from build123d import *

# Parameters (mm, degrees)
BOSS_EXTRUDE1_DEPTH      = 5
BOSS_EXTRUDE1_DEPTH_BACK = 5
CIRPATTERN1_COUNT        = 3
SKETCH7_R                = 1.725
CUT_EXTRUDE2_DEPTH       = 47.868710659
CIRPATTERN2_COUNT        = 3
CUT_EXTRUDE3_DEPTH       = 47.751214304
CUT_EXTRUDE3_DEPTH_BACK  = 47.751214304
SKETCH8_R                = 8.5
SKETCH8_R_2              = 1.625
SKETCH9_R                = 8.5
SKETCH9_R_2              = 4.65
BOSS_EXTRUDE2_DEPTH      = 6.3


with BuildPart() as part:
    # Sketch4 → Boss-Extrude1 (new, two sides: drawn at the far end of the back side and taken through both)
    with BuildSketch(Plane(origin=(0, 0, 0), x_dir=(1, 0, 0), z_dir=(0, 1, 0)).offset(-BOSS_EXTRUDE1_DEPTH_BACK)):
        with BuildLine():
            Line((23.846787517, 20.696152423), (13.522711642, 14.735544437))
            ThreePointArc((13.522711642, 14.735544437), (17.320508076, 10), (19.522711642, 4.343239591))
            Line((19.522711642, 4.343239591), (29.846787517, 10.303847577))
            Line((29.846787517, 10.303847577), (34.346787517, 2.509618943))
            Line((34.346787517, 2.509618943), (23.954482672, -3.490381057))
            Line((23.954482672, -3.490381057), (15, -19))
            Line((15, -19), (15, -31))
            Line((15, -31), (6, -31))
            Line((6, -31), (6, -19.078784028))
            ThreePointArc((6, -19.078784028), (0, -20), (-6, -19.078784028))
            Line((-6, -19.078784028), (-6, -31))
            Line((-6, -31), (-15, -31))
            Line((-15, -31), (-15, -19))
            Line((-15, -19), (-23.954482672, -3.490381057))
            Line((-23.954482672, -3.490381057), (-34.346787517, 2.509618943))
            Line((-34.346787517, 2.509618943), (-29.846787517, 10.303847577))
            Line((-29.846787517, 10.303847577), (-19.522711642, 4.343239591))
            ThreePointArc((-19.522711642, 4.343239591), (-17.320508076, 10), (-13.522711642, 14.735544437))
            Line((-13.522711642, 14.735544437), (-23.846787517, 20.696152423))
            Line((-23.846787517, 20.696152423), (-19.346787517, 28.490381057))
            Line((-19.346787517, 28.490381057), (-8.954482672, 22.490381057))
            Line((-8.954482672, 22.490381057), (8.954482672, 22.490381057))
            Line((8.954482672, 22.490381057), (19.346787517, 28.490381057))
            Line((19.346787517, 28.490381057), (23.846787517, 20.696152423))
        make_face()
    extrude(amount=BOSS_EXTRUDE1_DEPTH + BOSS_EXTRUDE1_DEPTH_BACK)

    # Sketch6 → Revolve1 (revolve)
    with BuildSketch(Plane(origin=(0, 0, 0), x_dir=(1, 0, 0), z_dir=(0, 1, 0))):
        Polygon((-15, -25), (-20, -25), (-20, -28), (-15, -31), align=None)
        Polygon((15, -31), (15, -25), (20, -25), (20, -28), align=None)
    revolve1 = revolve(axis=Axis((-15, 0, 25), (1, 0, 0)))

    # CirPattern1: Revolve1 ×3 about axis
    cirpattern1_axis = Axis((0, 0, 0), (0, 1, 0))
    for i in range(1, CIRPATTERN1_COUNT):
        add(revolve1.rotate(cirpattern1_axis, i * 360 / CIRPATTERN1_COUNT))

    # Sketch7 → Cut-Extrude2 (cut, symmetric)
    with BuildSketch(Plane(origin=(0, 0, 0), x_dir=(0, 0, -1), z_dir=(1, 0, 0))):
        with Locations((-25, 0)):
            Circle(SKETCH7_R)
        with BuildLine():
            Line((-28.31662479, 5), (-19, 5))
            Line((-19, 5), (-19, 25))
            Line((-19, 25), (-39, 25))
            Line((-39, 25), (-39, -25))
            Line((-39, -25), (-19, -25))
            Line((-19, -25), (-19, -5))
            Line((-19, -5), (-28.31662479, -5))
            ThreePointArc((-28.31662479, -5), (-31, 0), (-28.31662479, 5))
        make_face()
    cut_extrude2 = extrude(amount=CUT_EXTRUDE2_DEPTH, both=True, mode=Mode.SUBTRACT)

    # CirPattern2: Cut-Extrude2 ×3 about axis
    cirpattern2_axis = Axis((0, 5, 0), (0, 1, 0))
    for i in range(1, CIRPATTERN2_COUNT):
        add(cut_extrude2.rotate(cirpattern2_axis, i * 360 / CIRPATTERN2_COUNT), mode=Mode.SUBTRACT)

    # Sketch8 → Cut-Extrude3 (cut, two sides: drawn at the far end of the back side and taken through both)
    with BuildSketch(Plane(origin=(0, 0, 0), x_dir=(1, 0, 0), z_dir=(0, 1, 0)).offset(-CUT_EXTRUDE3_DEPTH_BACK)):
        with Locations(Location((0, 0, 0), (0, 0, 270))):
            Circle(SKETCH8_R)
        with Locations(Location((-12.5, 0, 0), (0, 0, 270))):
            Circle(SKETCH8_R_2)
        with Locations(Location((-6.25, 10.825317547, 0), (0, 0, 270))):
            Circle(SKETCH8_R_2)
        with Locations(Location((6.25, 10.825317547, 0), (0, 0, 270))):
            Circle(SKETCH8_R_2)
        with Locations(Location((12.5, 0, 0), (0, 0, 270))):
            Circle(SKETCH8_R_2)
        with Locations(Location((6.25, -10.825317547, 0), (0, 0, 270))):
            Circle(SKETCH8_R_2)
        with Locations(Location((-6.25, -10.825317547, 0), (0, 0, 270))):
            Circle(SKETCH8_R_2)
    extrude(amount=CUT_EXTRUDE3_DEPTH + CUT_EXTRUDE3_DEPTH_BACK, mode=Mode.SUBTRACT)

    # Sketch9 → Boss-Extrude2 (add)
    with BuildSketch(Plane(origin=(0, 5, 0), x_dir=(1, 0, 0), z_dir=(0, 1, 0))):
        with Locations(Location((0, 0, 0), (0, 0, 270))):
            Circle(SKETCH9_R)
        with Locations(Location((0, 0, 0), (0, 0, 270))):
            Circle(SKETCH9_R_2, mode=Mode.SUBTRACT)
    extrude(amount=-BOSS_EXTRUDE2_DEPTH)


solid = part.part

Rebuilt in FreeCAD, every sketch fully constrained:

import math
import FreeCAD as App
import Part
import Sketcher

V = App.Vector
Q = App.Units.Quantity


def add_polygon(sketch, points):
    """Adds a closed chain of lines whose ends are joined by coincident constraints."""
    first, n = sketch.GeometryCount, len(points)
    for a, b in zip(points, points[1:] + points[:1]):
        sketch.addGeometry(Part.LineSegment(App.Vector(*a, 0), App.Vector(*b, 0)), False)
    for i in range(n):
        sketch.addConstraint(Sketcher.Constraint("Coincident", first + i, 2, first + (i + 1) % n, 1))

doc = App.newDocument("Part")
body = doc.addObject("PartDesign::Body", "Body")

sketch1 = doc.addObject("Sketcher::SketchObject", "Sketch")
body.addObject(sketch1)
sketch1.AttachmentSupport = (doc.XZ_Plane, [""])
sketch1.MapMode = "FlatFace"
sketch1.addGeometry([
    Part.LineSegment(V(14, -15, 0), V(24, -21, 0)),
    Part.LineSegment(V(24, -21, 0), V(19, -28, 0)),
    Part.LineSegment(V(19, -28, 0), V(9, -22, 0)),
    Part.LineSegment(V(9, -22, 0), V(-9, -22, 0)),
    Part.LineSegment(V(-9, -22, 0), V(-19, -28, 0)),
    Part.LineSegment(V(-19, -28, 0), V(-24, -21, 0)),
    Part.LineSegment(V(-24, -21, 0), V(-14, -15, 0)),
    Part.ArcOfCircle(Part.Circle(V(0, 0, 0), V(0, 0, 1), 20), math.radians(-167), math.radians(-133)),
    Part.LineSegment(V(-20, -4, 0), V(-30, -10, 0)),
    Part.LineSegment(V(-30, -10, 0), V(-34, -3, 0)),
    Part.LineSegment(V(-34, -3, 0), V(-24, 3, 0)),
    Part.LineSegment(V(-24, 3, 0), V(-15, 19, 0)),
    Part.LineSegment(V(-15, 19, 0), V(-15, 31, 0)),
    Part.LineSegment(V(-15, 31, 0), V(-6, 31, 0)),
    Part.LineSegment(V(-6, 31, 0), V(-6, 19, 0)),
    Part.ArcOfCircle(Part.Circle(V(0, 0, 0), V(0, 0, 1), 20), math.radians(73), math.radians(107)),
    Part.LineSegment(V(6, 19, 0), V(6, 31, 0)),
    Part.LineSegment(V(6, 31, 0), V(15, 31, 0)),
    Part.LineSegment(V(15, 31, 0), V(15, 19, 0)),
    Part.LineSegment(V(15, 19, 0), V(24, 3, 0)),
    Part.LineSegment(V(24, 3, 0), V(34, -3, 0)),
    Part.LineSegment(V(34, -3, 0), V(30, -10, 0)),
    Part.LineSegment(V(30, -10, 0), V(20, -4, 0)),
    Part.ArcOfCircle(Part.Circle(V(0, 0, 0), V(0, 0, 1), 20), math.radians(-47), math.radians(-13)),
], False)
sketch1.addConstraint([
    Sketcher.Constraint("Coincident", 0, 2, 1, 1),
    Sketcher.Constraint("Coincident", 1, 2, 2, 1),
    Sketcher.Constraint("Coincident", 2, 2, 3, 1),
    Sketcher.Constraint("Coincident", 3, 2, 4, 1),
    Sketcher.Constraint("Coincident", 4, 2, 5, 1),
    Sketcher.Constraint("Coincident", 5, 2, 6, 1),
    Sketcher.Constraint("Coincident", 6, 2, 7, 2),
    Sketcher.Constraint("Coincident", 7, 1, 8, 1),
    Sketcher.Constraint("Coincident", 8, 2, 9, 1),
    Sketcher.Constraint("Coincident", 9, 2, 10, 1),
    Sketcher.Constraint("Coincident", 10, 2, 11, 1),
    Sketcher.Constraint("Coincident", 11, 2, 12, 1),
    Sketcher.Constraint("Coincident", 12, 2, 13, 1),
    Sketcher.Constraint("Coincident", 13, 2, 14, 1),
    Sketcher.Constraint("Coincident", 14, 2, 15, 2),
    Sketcher.Constraint("Coincident", 15, 1, 16, 1),
    Sketcher.Constraint("Coincident", 16, 2, 17, 1),
    Sketcher.Constraint("Coincident", 17, 2, 18, 1),
    Sketcher.Constraint("Coincident", 18, 2, 19, 1),
    Sketcher.Constraint("Coincident", 19, 2, 20, 1),
    Sketcher.Constraint("Coincident", 20, 2, 21, 1),
    Sketcher.Constraint("Coincident", 21, 2, 22, 1),
    Sketcher.Constraint("Coincident", 22, 2, 23, 2),
    Sketcher.Constraint("Coincident", 23, 1, 0, 1),
    Sketcher.Constraint("Horizontal", 3),
    Sketcher.Constraint("Vertical", 12),
    Sketcher.Constraint("Horizontal", 13),
    Sketcher.Constraint("Vertical", 14),
    Sketcher.Constraint("Vertical", 16),
    Sketcher.Constraint("Horizontal", 17),
    Sketcher.Constraint("Vertical", 18),
    Sketcher.Constraint("Coincident", 7, 3, -1, 1),
    Sketcher.Constraint("Coincident", 15, 3, -1, 1),
    Sketcher.Constraint("Coincident", 23, 3, -1, 1),
    Sketcher.Constraint("Equal", 7, 15),
    Sketcher.Constraint("Equal", 15, 23),
    Sketcher.Constraint("Symmetric", 1, 2, 4, 2, -2),
    Sketcher.Constraint("Symmetric", 0, 2, 5, 2, -2),
    Sketcher.Constraint("Symmetric", 13, 2, 16, 2, -2),
    Sketcher.Constraint("Symmetric", 11, 2, 18, 2, -2),
    Sketcher.Constraint("Symmetric", 10, 2, 19, 2, -2),
    Sketcher.Constraint("Symmetric", 9, 2, 20, 2, -2),
    Sketcher.Constraint("Symmetric", 8, 2, 21, 2, -2),
    Sketcher.Constraint("Perpendicular", 0, 1),
    Sketcher.Constraint("Perpendicular", 1, 2),
    Sketcher.Constraint("Perpendicular", 4, 5),
    Sketcher.Constraint("Perpendicular", 5, 6),
    Sketcher.Constraint("Parallel", 6, 8),
    Sketcher.Constraint("Perpendicular", 8, 9),
    Sketcher.Constraint("Perpendicular", 9, 10),
    Sketcher.Constraint("Perpendicular", 2, 11),
    Sketcher.Constraint("Perpendicular", 21, 22),
    Sketcher.Constraint("Equal", 6, 8),
    Sketcher.Constraint("Equal", 5, 9),
    Sketcher.Constraint("Equal", 4, 10),
    Sketcher.Constraint("Radius", 7, 20.0),
    Sketcher.Constraint("DistanceX", 13, 1, 13, 2, 9.0),
    Sketcher.Constraint("DistanceY", 12, 1, 12, 2, 12.0),
    Sketcher.Constraint("Angle", 0, Q("-30 deg")),
    Sketcher.Constraint("Distance", 1, 9.0),
    Sketcher.Constraint("Distance", 2, 12.0),
    Sketcher.Constraint("DistanceX", 11, 2, -1, 1, 15.0),
    Sketcher.Constraint("DistanceY", -1, 1, 11, 2, 19.0),
    Sketcher.Constraint("DistanceX", 7, 1, 6, 2, 6.0),
    Sketcher.Constraint("DistanceX", 3, 2, 3, 1, 17.908965),
])
pad1 = doc.addObject("PartDesign::Pad", "Pad")
body.addObject(pad1)
pad1.Profile = sketch1
pad1.Type = "TwoLengths"
pad1.Length = 5
pad1.Length2 = 5
pad1.Reversed = True

sketch2 = doc.addObject("Sketcher::SketchObject", "Sketch001")
body.addObject(sketch2)
sketch2.AttachmentSupport = (doc.XZ_Plane, [""])
sketch2.MapMode = "FlatFace"
add_polygon(sketch2, [(-15, 25), (-20, 25), (-20, 28), (-15, 31)])
add_polygon(sketch2, [(15, 25), (15, 31), (20, 28), (20, 25)])
sketch2.addGeometry(Part.LineSegment(V(-20, 25, 0), V(20, 25, 0)), True)
sketch2.addConstraint([
    Sketcher.Constraint("Horizontal", 0),
    Sketcher.Constraint("Vertical", 1),
    Sketcher.Constraint("Vertical", 3),
    Sketcher.Constraint("Vertical", 4),
    Sketcher.Constraint("Vertical", 6),
    Sketcher.Constraint("Horizontal", 7),
    Sketcher.Constraint("Horizontal", 8),
    Sketcher.Constraint("Coincident", 8, 1, 0, 2),
    Sketcher.Constraint("Coincident", 8, 2, 6, 2),
    Sketcher.Constraint("Symmetric", 2, 2, 4, 2, -2),
    Sketcher.Constraint("Symmetric", 1, 2, 5, 2, -2),
    Sketcher.Constraint("DistanceX", 0, 2, 0, 1, 5.0),
    Sketcher.Constraint("DistanceX", 8, 1, 8, 2, 40.0),
    Sketcher.Constraint("DistanceY", 1, 1, 1, 2, 3.0),
    Sketcher.Constraint("DistanceY", 3, 2, 3, 1, 6.0),
    Sketcher.Constraint("DistanceY", -1, 1, 0, 2, 25.0),
])
revolution = doc.addObject("PartDesign::Revolution", "Revolution")
body.addObject(revolution)
revolution.Profile = sketch2
revolution.ReferenceAxis = (sketch2, ["Axis0"])
revolution.Angle = 360
doc.recompute()

polarpattern = doc.addObject("PartDesign::PolarPattern", "PolarPattern")
body.addObject(polarpattern)
polarpattern.Originals = [revolution]
polarpattern.Axis = (doc.Y_Axis, [""])
polarpattern.Angle = 360
polarpattern.Occurrences = 3
body.Tip = polarpattern

sketch3 = doc.addObject("Sketcher::SketchObject", "Sketch002")
body.addObject(sketch3)
sketch3.AttachmentSupport = (doc.YZ_Plane, [""])
sketch3.MapMode = "FlatFace"
sketch3.addGeometry([
    Part.Circle(V(0, 25, 0), V(0, 0, 1), 1.7),
    Part.LineSegment(V(5, 28.3, 0), V(5, 19, 0)),
    Part.LineSegment(V(5, 19, 0), V(25, 19, 0)),
    Part.LineSegment(V(25, 19, 0), V(25, 39, 0)),
    Part.LineSegment(V(25, 39, 0), V(-25, 39, 0)),
    Part.LineSegment(V(-25, 39, 0), V(-25, 19, 0)),
    Part.LineSegment(V(-25, 19, 0), V(-5, 19, 0)),
    Part.LineSegment(V(-5, 19, 0), V(-5, 28.3, 0)),
    Part.ArcOfCircle(Part.Circle(V(0, 25, 0), V(0, 0, 1), 6), math.radians(34), math.radians(146)),
], False)
sketch3.addConstraint([
    Sketcher.Constraint("Coincident", 1, 2, 2, 1),
    Sketcher.Constraint("Coincident", 2, 2, 3, 1),
    Sketcher.Constraint("Coincident", 3, 2, 4, 1),
    Sketcher.Constraint("Coincident", 4, 2, 5, 1),
    Sketcher.Constraint("Coincident", 5, 2, 6, 1),
    Sketcher.Constraint("Coincident", 6, 2, 7, 1),
    Sketcher.Constraint("Coincident", 7, 2, 8, 2),
    Sketcher.Constraint("Coincident", 8, 1, 1, 1),
    Sketcher.Constraint("Vertical", 1),
    Sketcher.Constraint("Horizontal", 2),
    Sketcher.Constraint("Vertical", 3),
    Sketcher.Constraint("Horizontal", 4),
    Sketcher.Constraint("Vertical", 5),
    Sketcher.Constraint("Horizontal", 6),
    Sketcher.Constraint("Vertical", 7),
    Sketcher.Constraint("Coincident", 8, 3, 0, 3),
    Sketcher.Constraint("Symmetric", 2, 2, 5, 2, -2),
    Sketcher.Constraint("Symmetric", 7, 2, 8, 1, -2),
    Sketcher.Constraint("Equal", 6, 3),
    Sketcher.Constraint("Radius", 8, 6.0),
    Sketcher.Constraint("Diameter", 0, 3.45),
    Sketcher.Constraint("DistanceX", 2, 1, 2, 2, 20.0),
    Sketcher.Constraint("DistanceX", 4, 2, 4, 1, 50.0),
    Sketcher.Constraint("DistanceY", -1, 1, 0, 3, 25.0),
    Sketcher.Constraint("DistanceY", -1, 1, 1, 2, 19.0),
])
pocket1 = doc.addObject("PartDesign::Pocket", "Pocket")
body.addObject(pocket1)
pocket1.Profile = sketch3
pocket1.Length = 95.737421
pocket1.Midplane = True
doc.recompute()

polarpattern2 = doc.addObject("PartDesign::PolarPattern", "PolarPattern001")
body.addObject(polarpattern2)
polarpattern2.Originals = [pocket1]
polarpattern2.Axis = (doc.Y_Axis, [""])
polarpattern2.Angle = 360
polarpattern2.Occurrences = 3
body.Tip = polarpattern2

sketch4 = doc.addObject("Sketcher::SketchObject", "Sketch003")
body.addObject(sketch4)
sketch4.AttachmentSupport = (doc.XZ_Plane, [""])
sketch4.MapMode = "FlatFace"
sketch4.addGeometry([
    Part.Circle(V(0, 0, 0), V(0, 0, 1), 8.5),
    Part.Circle(V(-12.5, 0, 0), V(0, 0, 1), 1.6),
    Part.Circle(V(-6.2, -10.8, 0), V(0, 0, 1), 1.6),
    Part.Circle(V(6.2, -10.8, 0), V(0, 0, 1), 1.6),
    Part.Circle(V(12.5, 0, 0), V(0, 0, 1), 1.6),
    Part.Circle(V(6.2, 10.8, 0), V(0, 0, 1), 1.6),
    Part.Circle(V(-6.2, 10.8, 0), V(0, 0, 1), 1.6),
], False)
sketch4.addConstraint([
    Sketcher.Constraint("Coincident", 0, 3, -1, 1),
    Sketcher.Constraint("Equal", 1, 2),
    Sketcher.Constraint("Equal", 2, 3),
    Sketcher.Constraint("Equal", 3, 4),
    Sketcher.Constraint("Equal", 4, 5),
    Sketcher.Constraint("Equal", 5, 6),
    Sketcher.Constraint("Symmetric", 1, 3, 4, 3, -1, 1),
    Sketcher.Constraint("Symmetric", 2, 3, 5, 3, -1, 1),
    Sketcher.Constraint("Symmetric", 3, 3, 6, 3, -1, 1),
    Sketcher.Constraint("Symmetric", 2, 3, 3, 3, -2),
    Sketcher.Constraint("PointOnObject", 1, 3, -1),
    Sketcher.Constraint("Diameter", 0, 17.0),
    Sketcher.Constraint("Diameter", 1, 3.25),
    Sketcher.Constraint("DistanceX", 1, 3, 4, 3, 25.0),
    Sketcher.Constraint("DistanceX", 2, 3, 3, 3, 12.5),
    Sketcher.Constraint("DistanceY", 2, 3, -1, 1, 10.825318),
])
pocket2 = doc.addObject("PartDesign::Pocket", "Pocket001")
body.addObject(pocket2)
pocket2.Profile = sketch4
pocket2.Type = "ThroughAll"
pocket2.Midplane = True

sketch5 = doc.addObject("Sketcher::SketchObject", "Sketch004")
body.addObject(sketch5)
sketch5.AttachmentSupport = (doc.XZ_Plane, [""])
sketch5.MapMode = "FlatFace"
sketch5.AttachmentOffset = App.Placement(V(0, 0, -5), App.Rotation())
sketch5.addGeometry([
    Part.Circle(V(0, 0, 0), V(0, 0, 1), 8.5),
    Part.Circle(V(0, 0, 0), V(0, 0, 1), 4.7),
], False)
sketch5.addConstraint([
    Sketcher.Constraint("Coincident", 0, 3, -1, 1),
    Sketcher.Constraint("Coincident", 1, 3, -1, 1),
    Sketcher.Constraint("Diameter", 0, 17.0),
    Sketcher.Constraint("Diameter", 1, 9.3),
])
pad2 = doc.addObject("PartDesign::Pad", "Pad001")
body.addObject(pad2)
pad2.Profile = sketch5
pad2.Length = 6.3

doc.recompute()
